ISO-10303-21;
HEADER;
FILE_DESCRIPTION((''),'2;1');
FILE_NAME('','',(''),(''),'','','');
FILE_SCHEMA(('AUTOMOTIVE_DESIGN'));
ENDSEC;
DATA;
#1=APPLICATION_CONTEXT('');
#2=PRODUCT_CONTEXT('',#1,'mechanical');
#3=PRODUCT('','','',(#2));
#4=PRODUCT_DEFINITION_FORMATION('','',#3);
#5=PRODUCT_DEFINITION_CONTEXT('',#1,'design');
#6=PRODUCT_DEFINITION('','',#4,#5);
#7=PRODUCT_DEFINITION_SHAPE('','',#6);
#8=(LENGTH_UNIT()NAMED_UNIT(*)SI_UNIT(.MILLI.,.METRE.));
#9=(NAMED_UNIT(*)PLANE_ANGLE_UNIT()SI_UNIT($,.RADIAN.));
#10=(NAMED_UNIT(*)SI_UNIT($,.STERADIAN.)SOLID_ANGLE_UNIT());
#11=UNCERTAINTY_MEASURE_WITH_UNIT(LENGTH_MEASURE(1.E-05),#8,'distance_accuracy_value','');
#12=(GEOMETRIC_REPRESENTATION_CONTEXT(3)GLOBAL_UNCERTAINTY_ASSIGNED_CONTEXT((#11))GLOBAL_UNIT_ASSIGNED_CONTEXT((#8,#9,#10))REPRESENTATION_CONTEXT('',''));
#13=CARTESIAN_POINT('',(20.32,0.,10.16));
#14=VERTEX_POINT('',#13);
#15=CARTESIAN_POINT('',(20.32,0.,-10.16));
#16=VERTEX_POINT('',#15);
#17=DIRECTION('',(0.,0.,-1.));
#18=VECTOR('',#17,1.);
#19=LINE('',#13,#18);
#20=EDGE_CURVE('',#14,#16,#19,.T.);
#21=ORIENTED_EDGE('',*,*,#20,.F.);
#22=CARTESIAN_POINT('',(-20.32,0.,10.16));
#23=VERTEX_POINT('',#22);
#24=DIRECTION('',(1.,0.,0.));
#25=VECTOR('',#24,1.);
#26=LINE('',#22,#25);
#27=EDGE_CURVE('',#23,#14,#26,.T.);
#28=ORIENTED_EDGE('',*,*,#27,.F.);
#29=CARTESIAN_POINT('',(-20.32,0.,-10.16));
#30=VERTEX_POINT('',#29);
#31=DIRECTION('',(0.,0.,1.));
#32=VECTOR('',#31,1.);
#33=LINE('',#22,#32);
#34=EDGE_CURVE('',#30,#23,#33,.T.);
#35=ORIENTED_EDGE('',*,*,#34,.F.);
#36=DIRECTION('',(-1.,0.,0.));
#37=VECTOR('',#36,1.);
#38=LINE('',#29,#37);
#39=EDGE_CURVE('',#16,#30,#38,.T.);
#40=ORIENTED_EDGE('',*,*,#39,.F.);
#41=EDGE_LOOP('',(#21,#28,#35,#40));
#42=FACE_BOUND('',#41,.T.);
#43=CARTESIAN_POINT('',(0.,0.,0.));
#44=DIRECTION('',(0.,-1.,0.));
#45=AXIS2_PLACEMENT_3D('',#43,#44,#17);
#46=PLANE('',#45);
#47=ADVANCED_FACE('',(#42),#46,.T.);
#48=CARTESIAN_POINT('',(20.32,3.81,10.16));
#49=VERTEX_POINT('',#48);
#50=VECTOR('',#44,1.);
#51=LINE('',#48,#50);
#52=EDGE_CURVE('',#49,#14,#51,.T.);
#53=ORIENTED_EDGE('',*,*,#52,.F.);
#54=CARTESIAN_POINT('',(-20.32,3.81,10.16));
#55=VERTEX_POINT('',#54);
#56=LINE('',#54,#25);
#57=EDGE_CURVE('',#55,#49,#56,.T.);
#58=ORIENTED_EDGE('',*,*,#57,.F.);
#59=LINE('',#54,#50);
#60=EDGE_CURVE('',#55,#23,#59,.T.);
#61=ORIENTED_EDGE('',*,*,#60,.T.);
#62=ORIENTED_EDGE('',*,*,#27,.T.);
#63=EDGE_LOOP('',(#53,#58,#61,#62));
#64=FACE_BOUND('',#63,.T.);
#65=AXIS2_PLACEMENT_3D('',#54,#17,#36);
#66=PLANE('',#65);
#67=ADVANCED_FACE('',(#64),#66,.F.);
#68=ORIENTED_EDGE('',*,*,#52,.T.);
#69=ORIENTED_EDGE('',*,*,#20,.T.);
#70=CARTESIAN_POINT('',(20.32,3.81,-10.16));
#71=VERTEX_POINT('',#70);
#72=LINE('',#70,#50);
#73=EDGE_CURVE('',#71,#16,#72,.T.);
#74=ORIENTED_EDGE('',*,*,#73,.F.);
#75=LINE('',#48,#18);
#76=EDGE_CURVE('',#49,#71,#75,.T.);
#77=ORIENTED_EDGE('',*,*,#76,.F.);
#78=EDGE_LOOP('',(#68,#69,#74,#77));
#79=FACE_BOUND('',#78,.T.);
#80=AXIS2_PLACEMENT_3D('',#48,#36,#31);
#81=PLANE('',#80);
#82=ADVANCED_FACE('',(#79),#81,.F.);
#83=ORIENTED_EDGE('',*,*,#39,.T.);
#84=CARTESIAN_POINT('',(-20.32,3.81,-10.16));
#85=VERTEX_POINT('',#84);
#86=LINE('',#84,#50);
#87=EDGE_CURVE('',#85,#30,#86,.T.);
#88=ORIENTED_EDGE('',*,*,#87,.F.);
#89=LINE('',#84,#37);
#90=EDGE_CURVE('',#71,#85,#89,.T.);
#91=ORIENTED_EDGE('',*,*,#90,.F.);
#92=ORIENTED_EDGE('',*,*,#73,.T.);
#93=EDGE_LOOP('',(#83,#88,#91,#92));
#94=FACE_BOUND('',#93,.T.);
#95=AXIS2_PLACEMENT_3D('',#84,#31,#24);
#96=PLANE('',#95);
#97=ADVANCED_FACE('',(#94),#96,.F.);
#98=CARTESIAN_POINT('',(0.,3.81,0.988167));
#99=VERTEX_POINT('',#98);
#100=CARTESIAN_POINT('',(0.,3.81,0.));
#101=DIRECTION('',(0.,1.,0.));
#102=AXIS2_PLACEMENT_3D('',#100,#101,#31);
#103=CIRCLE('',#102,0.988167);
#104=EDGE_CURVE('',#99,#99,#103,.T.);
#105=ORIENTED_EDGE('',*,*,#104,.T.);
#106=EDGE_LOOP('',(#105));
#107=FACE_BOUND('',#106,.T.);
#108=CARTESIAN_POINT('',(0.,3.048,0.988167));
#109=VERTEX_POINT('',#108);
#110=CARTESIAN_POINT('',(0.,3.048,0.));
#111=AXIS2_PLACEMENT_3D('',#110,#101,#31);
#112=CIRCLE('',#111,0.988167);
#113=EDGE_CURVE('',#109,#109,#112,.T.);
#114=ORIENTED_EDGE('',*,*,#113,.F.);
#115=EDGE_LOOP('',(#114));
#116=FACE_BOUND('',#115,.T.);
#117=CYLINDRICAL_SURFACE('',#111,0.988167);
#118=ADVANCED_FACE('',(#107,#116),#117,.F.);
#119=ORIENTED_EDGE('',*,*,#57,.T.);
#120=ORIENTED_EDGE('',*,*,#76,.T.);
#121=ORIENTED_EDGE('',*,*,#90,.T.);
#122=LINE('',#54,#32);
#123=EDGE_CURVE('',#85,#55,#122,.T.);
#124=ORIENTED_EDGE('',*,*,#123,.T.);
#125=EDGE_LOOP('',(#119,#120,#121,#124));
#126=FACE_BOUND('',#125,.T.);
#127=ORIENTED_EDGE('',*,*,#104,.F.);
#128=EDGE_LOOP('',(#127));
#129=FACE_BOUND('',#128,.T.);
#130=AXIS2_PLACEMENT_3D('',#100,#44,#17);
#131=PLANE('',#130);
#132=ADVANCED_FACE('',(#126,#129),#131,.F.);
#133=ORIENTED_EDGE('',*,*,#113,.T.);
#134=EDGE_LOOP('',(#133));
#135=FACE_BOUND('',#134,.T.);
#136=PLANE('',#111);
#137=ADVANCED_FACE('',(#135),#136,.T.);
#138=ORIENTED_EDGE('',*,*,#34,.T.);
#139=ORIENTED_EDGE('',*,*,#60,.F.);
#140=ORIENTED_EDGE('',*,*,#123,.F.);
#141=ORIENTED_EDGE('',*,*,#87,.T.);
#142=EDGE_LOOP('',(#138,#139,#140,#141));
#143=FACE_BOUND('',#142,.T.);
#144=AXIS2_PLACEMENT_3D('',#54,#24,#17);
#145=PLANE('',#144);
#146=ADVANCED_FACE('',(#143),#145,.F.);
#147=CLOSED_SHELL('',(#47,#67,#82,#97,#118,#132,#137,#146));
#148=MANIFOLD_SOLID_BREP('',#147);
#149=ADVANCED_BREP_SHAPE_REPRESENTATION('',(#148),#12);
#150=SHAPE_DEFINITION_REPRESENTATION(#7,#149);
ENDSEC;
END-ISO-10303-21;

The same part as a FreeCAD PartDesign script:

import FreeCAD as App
import Part
import Sketcher

V = App.Vector
Q = App.Units.Quantity

doc = App.newDocument("Part")
body = doc.addObject("PartDesign::Body", "Body")

sketch1 = body.newObject("Sketcher::SketchObject", "Sketch")
sketch1.AttachmentSupport = (doc.getObject("XZ_Plane"), [""])
sketch1.MapMode = "FlatFace"
sketch1.addGeometry(Part.LineSegment(V(-20, -10, 0), V(-20, 10, 0)), False)
sketch1.addGeometry(Part.LineSegment(V(-20, 10, 0), V(20, 10, 0)), False)
sketch1.addGeometry(Part.LineSegment(V(20, 10, 0), V(20, -10, 0)), False)
sketch1.addGeometry(Part.LineSegment(V(20, -10, 0), V(-20, -10, 0)), False)
sketch1.addConstraint(Sketcher.Constraint("Coincident", 0, 2, 1, 1))
sketch1.addConstraint(Sketcher.Constraint("Coincident", 1, 2, 2, 1))
sketch1.addConstraint(Sketcher.Constraint("Coincident", 2, 2, 3, 1))
sketch1.addConstraint(Sketcher.Constraint("Coincident", 3, 2, 0, 1))
sketch1.addConstraint(Sketcher.Constraint("Vertical", 0))
sketch1.addConstraint(Sketcher.Constraint("Horizontal", 1))
sketch1.addConstraint(Sketcher.Constraint("Vertical", 2))
sketch1.addConstraint(Sketcher.Constraint("Horizontal", 3))
sketch1.addConstraint(Sketcher.Constraint("Symmetric", 0, 2, 2, 2, -1, 1))
sketch1.addConstraint(Sketcher.Constraint("DistanceX", 1, 1, 1, 2, Q("1.6 in")))
sketch1.addConstraint(Sketcher.Constraint("DistanceY", 0, 1, 0, 2, Q("0.8 in")))
pad1 = body.newObject("PartDesign::Pad", "Pad")
pad1.Profile = sketch1
pad1.Length = Q("0.15 in")
pad1.Reversed = True

sketch2 = body.newObject("Sketcher::SketchObject", "Sketch001")
sketch2.AttachmentSupport = (doc.getObject("XZ_Plane"), [""])
sketch2.MapMode = "FlatFace"
sketch2.AttachmentOffset = App.Placement(V(0, 0, -0.15 * 25.4), App.Rotation())
sketch2.addGeometry(Part.Circle(V(0, 0, 0), V(0, 0, 1), 1), False)
sketch2.addConstraint(Sketcher.Constraint("Coincident", 0, 3, -1, 1))
sketch2.addConstraint(Sketcher.Constraint("Diameter", 0, Q("1.976333 mm")))
pocket1 = body.newObject("PartDesign::Pocket", "Pocket")
pocket1.Profile = sketch2
pocket1.Length = Q("0.03 in")
pocket1.Reversed = True

doc.recompute()
